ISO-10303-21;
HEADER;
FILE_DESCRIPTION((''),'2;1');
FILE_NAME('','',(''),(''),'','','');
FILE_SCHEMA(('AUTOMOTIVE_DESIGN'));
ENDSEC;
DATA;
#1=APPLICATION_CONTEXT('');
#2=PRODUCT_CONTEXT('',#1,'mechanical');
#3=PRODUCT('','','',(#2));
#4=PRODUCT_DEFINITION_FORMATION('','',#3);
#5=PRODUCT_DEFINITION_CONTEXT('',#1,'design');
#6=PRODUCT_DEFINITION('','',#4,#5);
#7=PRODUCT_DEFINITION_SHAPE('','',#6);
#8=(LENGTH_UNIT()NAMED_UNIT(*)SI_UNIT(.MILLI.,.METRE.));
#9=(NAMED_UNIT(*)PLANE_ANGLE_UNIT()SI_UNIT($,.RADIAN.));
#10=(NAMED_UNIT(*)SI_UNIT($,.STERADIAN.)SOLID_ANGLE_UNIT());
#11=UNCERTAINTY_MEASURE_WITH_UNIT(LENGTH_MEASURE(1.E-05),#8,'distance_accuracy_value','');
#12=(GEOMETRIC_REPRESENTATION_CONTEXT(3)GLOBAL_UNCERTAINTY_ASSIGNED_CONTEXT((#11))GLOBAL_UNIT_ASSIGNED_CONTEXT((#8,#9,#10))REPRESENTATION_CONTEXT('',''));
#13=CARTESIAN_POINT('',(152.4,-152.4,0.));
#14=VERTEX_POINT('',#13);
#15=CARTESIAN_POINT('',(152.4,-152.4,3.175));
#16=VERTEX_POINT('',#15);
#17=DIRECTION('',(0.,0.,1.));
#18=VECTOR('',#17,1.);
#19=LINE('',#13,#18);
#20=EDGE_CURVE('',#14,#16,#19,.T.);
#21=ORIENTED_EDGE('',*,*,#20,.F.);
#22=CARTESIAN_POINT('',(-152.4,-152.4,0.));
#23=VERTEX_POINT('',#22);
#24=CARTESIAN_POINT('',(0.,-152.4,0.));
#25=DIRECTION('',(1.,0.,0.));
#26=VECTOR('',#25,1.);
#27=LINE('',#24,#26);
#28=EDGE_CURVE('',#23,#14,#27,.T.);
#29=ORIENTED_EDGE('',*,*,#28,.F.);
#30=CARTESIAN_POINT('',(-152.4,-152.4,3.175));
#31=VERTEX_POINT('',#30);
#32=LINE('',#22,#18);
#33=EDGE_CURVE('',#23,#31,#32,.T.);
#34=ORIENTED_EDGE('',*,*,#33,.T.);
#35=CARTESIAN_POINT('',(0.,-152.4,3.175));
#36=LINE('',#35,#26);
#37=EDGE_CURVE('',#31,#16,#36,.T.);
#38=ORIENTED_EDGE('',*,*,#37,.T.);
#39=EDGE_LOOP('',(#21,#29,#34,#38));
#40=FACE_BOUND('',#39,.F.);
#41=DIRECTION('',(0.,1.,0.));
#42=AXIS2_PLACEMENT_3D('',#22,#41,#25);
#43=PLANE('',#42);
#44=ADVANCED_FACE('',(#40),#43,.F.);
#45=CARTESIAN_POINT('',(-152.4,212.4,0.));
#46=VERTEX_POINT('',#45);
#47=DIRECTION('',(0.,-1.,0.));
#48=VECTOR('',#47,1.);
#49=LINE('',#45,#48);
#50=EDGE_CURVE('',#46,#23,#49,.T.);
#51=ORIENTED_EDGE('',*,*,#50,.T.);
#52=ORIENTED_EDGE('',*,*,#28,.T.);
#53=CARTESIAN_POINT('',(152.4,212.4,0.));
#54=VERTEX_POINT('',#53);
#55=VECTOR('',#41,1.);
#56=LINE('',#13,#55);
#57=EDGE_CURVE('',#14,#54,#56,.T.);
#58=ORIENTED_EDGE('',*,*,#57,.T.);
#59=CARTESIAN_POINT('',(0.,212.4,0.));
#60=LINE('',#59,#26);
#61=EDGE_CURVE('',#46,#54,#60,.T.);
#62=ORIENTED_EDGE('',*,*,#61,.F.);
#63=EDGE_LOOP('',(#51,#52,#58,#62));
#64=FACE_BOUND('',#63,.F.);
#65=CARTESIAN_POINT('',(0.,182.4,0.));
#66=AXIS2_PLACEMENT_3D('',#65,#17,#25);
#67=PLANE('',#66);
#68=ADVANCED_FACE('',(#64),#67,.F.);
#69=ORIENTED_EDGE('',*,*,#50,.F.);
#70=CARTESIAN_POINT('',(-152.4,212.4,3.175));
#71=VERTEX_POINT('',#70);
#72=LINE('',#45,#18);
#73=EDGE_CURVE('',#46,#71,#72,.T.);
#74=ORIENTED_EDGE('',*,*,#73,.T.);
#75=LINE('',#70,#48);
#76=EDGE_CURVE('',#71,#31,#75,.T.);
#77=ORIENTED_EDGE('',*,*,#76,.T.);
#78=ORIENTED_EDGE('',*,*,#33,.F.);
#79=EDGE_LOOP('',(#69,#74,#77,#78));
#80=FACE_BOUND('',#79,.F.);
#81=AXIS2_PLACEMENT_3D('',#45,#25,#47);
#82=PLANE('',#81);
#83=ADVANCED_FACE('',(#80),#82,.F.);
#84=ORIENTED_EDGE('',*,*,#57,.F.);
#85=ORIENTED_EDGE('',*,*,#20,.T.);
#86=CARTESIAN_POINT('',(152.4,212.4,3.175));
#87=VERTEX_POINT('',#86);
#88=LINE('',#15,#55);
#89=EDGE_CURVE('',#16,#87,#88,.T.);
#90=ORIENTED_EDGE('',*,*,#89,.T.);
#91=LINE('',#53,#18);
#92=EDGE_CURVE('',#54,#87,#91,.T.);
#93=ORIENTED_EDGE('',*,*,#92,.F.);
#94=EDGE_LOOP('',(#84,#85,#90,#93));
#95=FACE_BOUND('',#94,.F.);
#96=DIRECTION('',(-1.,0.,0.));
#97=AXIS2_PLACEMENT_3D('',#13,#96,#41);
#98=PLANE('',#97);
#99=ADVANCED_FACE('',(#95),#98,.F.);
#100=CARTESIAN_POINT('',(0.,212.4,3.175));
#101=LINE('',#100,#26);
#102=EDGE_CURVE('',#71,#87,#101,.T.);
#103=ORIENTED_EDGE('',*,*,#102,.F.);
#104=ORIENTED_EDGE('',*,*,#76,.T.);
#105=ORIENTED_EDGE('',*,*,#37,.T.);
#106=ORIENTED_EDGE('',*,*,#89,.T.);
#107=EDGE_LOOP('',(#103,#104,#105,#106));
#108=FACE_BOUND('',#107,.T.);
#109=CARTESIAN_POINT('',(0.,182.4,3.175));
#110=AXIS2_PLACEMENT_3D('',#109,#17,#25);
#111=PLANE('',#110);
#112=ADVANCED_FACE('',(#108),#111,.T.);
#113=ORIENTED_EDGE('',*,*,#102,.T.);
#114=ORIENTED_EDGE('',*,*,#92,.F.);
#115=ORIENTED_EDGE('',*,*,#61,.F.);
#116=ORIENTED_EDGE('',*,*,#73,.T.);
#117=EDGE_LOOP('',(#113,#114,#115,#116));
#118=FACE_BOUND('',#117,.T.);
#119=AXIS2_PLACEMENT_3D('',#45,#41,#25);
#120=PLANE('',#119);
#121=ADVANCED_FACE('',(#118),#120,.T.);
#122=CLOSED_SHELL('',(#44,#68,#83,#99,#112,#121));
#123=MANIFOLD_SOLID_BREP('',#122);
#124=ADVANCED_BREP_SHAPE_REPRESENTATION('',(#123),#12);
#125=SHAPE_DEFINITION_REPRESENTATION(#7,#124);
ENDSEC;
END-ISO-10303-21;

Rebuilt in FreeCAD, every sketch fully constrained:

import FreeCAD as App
import Part
import Sketcher
Q = App.Units.Quantity


def add_polygon(sketch, points):
    """Adds a closed chain of lines whose ends are joined by coincident constraints."""
    first, n = sketch.GeometryCount, len(points)
    for a, b in zip(points, points[1:] + points[:1]):
        sketch.addGeometry(Part.LineSegment(App.Vector(*a, 0), App.Vector(*b, 0)), False)
    for i in range(n):
        sketch.addConstraint(Sketcher.Constraint("Coincident", first + i, 2, first + (i + 1) % n, 1))

doc = App.newDocument("Part")
body = doc.addObject("PartDesign::Body", "Body")

sketch1 = body.newObject("Sketcher::SketchObject", "Sketch")
sketch1.AttachmentSupport = (doc.getObject("XY_Plane"), [""])
sketch1.MapMode = "FlatFace"
add_polygon(sketch1, [(-152, 212), (-152, -152), (152, -152), (152, 212)])
sketch1.addConstraint([
    Sketcher.Constraint("Vertical", 0),
    Sketcher.Constraint("Horizontal", 1),
    Sketcher.Constraint("Vertical", 2),
    Sketcher.Constraint("Horizontal", 3),
    Sketcher.Constraint("DistanceX", 1, 1, 1, 2, Q("12 in")),
    Sketcher.Constraint("DistanceX", 0, 2, -1, 1, Q("6 in")),
    Sketcher.Constraint("DistanceY", 0, 2, -1, 1, Q("6 in")),
    Sketcher.Constraint("DistanceY", 0, 2, 0, 1, 364.8),
])
pad1 = body.newObject("PartDesign::Pad", "Pad")
pad1.Profile = sketch1
pad1.Length = Q("0.125 in")

doc.recompute()
